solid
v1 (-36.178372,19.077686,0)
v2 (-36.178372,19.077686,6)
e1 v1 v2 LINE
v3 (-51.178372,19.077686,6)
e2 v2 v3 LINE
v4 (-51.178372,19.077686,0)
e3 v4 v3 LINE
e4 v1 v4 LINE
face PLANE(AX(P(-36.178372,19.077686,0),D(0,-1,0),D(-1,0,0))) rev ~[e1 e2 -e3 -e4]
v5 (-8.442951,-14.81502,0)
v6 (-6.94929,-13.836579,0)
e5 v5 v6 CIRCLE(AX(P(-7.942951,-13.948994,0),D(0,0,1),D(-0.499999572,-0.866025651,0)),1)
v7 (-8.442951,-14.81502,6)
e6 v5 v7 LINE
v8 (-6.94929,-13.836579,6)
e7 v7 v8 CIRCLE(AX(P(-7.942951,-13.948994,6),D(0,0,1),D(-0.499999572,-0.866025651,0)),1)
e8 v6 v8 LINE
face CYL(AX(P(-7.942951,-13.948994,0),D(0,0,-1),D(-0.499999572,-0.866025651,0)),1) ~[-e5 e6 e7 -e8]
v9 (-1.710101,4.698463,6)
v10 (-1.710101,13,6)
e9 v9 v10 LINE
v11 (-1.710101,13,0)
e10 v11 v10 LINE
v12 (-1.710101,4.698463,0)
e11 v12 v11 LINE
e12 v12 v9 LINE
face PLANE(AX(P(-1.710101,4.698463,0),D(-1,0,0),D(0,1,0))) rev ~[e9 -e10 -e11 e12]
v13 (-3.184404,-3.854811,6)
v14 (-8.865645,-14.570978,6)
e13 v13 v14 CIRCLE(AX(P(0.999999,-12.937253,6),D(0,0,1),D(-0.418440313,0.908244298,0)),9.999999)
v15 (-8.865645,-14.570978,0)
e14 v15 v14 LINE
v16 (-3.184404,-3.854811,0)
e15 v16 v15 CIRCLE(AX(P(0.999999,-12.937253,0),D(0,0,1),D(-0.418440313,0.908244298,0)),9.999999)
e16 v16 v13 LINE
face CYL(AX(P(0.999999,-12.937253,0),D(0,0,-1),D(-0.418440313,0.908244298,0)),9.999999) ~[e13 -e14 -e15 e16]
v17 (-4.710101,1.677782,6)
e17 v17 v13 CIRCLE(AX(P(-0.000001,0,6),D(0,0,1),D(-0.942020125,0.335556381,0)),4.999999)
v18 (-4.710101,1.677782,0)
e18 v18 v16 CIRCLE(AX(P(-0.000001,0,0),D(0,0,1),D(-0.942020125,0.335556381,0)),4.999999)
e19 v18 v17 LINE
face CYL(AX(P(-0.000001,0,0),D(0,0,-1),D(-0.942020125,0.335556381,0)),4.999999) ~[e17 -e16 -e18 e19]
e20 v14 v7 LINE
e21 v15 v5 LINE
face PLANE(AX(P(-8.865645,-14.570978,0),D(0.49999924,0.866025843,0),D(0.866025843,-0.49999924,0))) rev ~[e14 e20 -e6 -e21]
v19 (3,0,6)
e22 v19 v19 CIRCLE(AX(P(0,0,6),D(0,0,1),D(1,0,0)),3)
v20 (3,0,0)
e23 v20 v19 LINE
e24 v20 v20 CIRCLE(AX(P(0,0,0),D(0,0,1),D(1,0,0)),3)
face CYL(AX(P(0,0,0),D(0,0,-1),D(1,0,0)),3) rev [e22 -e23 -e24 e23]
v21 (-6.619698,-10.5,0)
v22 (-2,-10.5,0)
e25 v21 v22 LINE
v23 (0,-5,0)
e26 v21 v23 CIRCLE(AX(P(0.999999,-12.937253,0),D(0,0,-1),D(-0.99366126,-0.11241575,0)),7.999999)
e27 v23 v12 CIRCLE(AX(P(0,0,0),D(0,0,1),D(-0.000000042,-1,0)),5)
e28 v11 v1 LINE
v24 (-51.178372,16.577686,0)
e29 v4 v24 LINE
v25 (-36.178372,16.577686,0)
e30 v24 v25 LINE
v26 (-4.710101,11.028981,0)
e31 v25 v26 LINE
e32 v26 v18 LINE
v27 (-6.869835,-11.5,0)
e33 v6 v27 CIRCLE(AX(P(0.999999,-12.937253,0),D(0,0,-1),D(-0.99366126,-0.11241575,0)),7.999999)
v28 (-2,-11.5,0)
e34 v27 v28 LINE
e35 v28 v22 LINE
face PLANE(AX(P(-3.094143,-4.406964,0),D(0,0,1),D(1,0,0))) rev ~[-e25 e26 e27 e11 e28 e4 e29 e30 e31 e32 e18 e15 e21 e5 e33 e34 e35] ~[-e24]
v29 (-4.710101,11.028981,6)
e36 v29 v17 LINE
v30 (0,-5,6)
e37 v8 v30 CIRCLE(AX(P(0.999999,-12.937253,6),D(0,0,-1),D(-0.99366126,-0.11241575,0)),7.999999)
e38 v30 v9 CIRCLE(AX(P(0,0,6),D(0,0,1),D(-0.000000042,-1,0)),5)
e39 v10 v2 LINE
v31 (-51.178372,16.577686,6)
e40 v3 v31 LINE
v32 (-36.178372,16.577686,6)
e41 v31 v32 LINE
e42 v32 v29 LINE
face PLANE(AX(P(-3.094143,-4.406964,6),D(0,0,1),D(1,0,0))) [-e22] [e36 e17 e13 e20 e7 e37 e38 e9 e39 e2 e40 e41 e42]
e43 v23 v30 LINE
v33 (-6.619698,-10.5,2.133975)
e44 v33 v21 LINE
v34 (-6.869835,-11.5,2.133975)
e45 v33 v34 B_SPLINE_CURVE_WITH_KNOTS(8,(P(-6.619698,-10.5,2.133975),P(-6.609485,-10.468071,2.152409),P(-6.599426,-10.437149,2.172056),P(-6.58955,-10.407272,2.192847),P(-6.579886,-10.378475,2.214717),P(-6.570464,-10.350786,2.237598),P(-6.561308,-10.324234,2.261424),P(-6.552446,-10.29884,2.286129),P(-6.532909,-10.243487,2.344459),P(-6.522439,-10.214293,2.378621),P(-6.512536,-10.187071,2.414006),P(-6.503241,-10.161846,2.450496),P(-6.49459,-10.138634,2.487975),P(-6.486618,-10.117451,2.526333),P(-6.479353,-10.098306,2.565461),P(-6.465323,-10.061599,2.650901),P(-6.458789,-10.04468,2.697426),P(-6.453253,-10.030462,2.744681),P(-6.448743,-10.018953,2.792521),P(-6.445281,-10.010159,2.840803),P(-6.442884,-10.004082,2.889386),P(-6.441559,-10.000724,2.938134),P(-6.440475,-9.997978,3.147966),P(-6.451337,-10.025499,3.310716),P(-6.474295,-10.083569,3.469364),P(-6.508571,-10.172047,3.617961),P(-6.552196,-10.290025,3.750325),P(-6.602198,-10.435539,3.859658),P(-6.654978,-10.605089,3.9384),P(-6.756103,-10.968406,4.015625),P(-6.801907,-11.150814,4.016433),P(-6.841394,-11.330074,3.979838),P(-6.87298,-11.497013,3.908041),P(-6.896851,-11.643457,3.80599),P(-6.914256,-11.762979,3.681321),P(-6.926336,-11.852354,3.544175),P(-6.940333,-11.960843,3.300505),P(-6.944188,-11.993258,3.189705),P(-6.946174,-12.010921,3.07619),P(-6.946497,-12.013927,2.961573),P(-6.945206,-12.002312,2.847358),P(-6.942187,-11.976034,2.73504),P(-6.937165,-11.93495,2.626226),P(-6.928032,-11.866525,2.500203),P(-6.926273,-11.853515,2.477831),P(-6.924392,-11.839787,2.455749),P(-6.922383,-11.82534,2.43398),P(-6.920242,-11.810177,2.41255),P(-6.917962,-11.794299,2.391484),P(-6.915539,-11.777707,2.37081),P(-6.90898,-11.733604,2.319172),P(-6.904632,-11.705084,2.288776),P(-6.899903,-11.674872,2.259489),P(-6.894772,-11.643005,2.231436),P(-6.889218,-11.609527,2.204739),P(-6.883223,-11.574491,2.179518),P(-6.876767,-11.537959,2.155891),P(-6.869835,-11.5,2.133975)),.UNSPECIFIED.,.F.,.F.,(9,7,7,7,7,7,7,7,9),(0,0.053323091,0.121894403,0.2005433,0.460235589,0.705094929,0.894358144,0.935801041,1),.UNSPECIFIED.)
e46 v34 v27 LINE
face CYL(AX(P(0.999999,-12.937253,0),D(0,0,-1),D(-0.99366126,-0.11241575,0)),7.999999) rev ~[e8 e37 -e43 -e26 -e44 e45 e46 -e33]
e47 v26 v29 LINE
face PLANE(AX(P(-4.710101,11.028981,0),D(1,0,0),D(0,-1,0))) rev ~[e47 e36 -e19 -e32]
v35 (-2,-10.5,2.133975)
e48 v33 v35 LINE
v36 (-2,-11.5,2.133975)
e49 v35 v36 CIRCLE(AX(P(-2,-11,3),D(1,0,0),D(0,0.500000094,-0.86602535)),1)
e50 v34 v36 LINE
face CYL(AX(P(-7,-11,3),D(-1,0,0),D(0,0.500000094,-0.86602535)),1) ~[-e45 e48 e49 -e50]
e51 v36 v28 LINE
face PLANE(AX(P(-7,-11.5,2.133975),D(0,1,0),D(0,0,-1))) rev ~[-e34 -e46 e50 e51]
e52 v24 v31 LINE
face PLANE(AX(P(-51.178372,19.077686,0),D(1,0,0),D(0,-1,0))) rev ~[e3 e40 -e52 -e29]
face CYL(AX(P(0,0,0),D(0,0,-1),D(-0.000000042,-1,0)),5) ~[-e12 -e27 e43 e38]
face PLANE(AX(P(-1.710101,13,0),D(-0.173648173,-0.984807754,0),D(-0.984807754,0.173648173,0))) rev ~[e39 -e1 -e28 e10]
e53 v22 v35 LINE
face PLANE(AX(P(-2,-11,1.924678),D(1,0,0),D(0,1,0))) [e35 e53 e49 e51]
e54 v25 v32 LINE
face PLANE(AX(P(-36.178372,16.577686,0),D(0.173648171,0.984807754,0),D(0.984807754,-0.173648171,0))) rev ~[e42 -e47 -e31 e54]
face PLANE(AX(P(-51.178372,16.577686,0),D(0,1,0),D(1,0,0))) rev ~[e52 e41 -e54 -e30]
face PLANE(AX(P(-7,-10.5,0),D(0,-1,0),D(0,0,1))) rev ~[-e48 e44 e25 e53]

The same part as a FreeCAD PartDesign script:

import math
import FreeCAD as App
import Part
import Sketcher

V = App.Vector
Q = App.Units.Quantity

doc = App.newDocument("Part")
params = doc.addObject("Spreadsheet::Sheet", "Params")
for row, (alias, value) in enumerate([
    ("sketch1_diameter", "6 mm"),
    ("sketch1_radius", "7.999999 mm"),
    ("sketch1_radius2", "5 mm"),
    ("sketch1_radius3", "9.999999 mm"),
    ("sketch1_radius4", "1 mm"),
    ("pad1_length", "6 mm"),
    ("sketch2_radius", "1 mm"),
    ("sketch2_width", "1 mm"),
    ("pad2_length", "5 mm"),
], start=1):
    params.set(f"A{row}", alias)
    params.set(f"B{row}", "=" + value)
    params.setAlias(f"B{row}", alias)

body = doc.addObject("PartDesign::Body", "Body")

# Sketch on XY plane
sketch1 = body.newObject("Sketcher::SketchObject", "Sketch")
sketch1.AttachmentSupport = (doc.getObject("XY_Plane"), [""])
sketch1.MapMode = "FlatFace"
sketch1.addGeometry([
    Part.ArcOfCircle(Part.Circle(V(1, -12.94, 0), V(0, 0, 1), 8), math.radians(97), math.radians(186)),  # 0
    Part.ArcOfCircle(Part.Circle(V(0, 0, 0), V(0, 0, 1), 5), math.radians(-90), math.radians(110)),  # 1
    Part.LineSegment(V(-1.71, 4.7, 0), V(-1.71, 13, 0)),  # 2
    Part.LineSegment(V(-1.71, 13, 0), V(-36.18, 19.08, 0)),  # 3
    Part.LineSegment(V(-36.18, 19.08, 0), V(-51.18, 19.08, 0)),  # 4
    Part.LineSegment(V(-51.18, 19.08, 0), V(-51.18, 16.58, 0)),  # 5
    Part.LineSegment(V(-51.18, 16.58, 0), V(-36.18, 16.58, 0)),  # 6
    Part.LineSegment(V(-36.18, 16.58, 0), V(-4.71, 11.03, 0)),  # 7
    Part.LineSegment(V(-4.71, 11.03, 0), V(-4.71, 1.68, 0)),  # 8
    Part.ArcOfCircle(Part.Circle(V(0, 0, 0), V(0, 0, 1), 5), math.radians(160), math.radians(230)),  # 9
    Part.ArcOfCircle(Part.Circle(V(1, -12.94, 0), V(0, 0, 1), 10), math.radians(115), math.radians(189)),  # 10
    Part.LineSegment(V(-8.87, -14.57, 0), V(-8.44, -14.82, 0)),  # 11
    Part.ArcOfCircle(Part.Circle(V(-7.94, -13.95, 0), V(0, 0, 1), 1), math.radians(-120), math.radians(6)),  # 12
    Part.Circle(V(0, 0, 0), V(0, 0, 1), 3),  # 13
], False)
sketch1.addConstraint([
    Sketcher.Constraint("Coincident", 0, 1, 1, 1),
    Sketcher.Constraint("Coincident", 1, 2, 2, 1),
    Sketcher.Constraint("Coincident", 2, 2, 3, 1),
    Sketcher.Constraint("Coincident", 3, 2, 4, 1),
    Sketcher.Constraint("Coincident", 4, 2, 5, 1),
    Sketcher.Constraint("Coincident", 5, 2, 6, 1),
    Sketcher.Constraint("Coincident", 6, 2, 7, 1),
    Sketcher.Constraint("Coincident", 7, 2, 8, 1),
    Sketcher.Constraint("Coincident", 8, 2, 9, 1),
    Sketcher.Constraint("Coincident", 9, 2, 10, 1),
    Sketcher.Constraint("Coincident", 10, 2, 11, 1),
    Sketcher.Constraint("Tangent", 11, 2, 12, 1),
    Sketcher.Constraint("Tangent", 12, 2, 0, 2),
    Sketcher.Constraint("Vertical", 2),
    Sketcher.Constraint("Horizontal", 4),
    Sketcher.Constraint("Vertical", 5),
    Sketcher.Constraint("Horizontal", 6),
    Sketcher.Constraint("Vertical", 8),
    Sketcher.Constraint("Coincident", 1, 3, -1, 1),
    Sketcher.Constraint("Coincident", 9, 3, -1, 1),
    Sketcher.Constraint("Coincident", 13, 3, -1, 1),
    Sketcher.Constraint("Coincident", 10, 3, 0, 3),
    Sketcher.Constraint("Equal", 1, 9),
    Sketcher.Constraint("PointOnObject", 0, 1, -2),
    Sketcher.Constraint("Parallel", 3, 7),
    Sketcher.Constraint("Vertical", 3, 2, 6, 2),
    Sketcher.Constraint("Diameter", 13, Q("6 mm")),
    Sketcher.Constraint("Radius", 0, Q("7.999999 mm")),
    Sketcher.Constraint("Radius", 1, Q("5 mm")),
    Sketcher.Constraint("Radius", 10, Q("9.999999 mm")),
    Sketcher.Constraint("Radius", 12, Q("1 mm")),
    Sketcher.Constraint("DistanceX", 4, 2, 4, 1, Q("15 mm")),
    Sketcher.Constraint("Angle", 3, Q("170 deg")),
    Sketcher.Constraint("Distance", 3, Q("35 mm")),
    Sketcher.Constraint("DistanceY", 5, 2, 5, 1, Q("2.5 mm")),
    Sketcher.Constraint("DistanceX", -1, 1, 0, 3, Q("0.999999 mm")),
    Sketcher.Constraint("DistanceY", -1, 1, 2, 2, Q("13 mm")),
    Sketcher.Constraint("DistanceX", 7, 2, 2, 2, Q("3 mm")),
    Sketcher.Constraint("DistanceX", 11, 2, 12, 3, Q("0.5 mm")),
    Sketcher.Constraint("DistanceY", 8, 2, 8, 1, Q("9.351199 mm")),
    Sketcher.Constraint("DistanceY", 10, 2, 12, 2, Q("0.734399 mm")),
])
sketch1.setExpression("Constraints[26]", "Params.sketch1_diameter")
sketch1.setExpression("Constraints[27]", "Params.sketch1_radius")
sketch1.setExpression("Constraints[28]", "Params.sketch1_radius2")
sketch1.setExpression("Constraints[29]", "Params.sketch1_radius3")
sketch1.setExpression("Constraints[30]", "Params.sketch1_radius4")
pad1 = body.newObject("PartDesign::Pad", "Pad")
pad1.Profile = sketch1
pad1.setExpression("Length", "Params.pad1_length")

# Sketch on YZ plane
sketch2 = body.newObject("Sketcher::SketchObject", "Sketch001")
sketch2.AttachmentSupport = (doc.getObject("YZ_Plane"), [""])
sketch2.MapMode = "FlatFace"
sketch2.AttachmentOffset = App.Placement(V(0, 0, -7), App.Rotation())
sketch2.addGeometry([
    Part.LineSegment(V(-10.5, 0, 0), V(-10.5, 2.1, 0)),
    Part.ArcOfCircle(Part.Circle(V(-11, 3, 0), V(0, 0, 1), 1), math.radians(-60), math.radians(240)),
    Part.LineSegment(V(-11.5, 2.1, 0), V(-11.5, 0, 0)),
    Part.LineSegment(V(-11.5, 0, 0), V(-10.5, 0, 0)),
], False)
sketch2.addConstraint([
    Sketcher.Constraint("Coincident", 0, 2, 1, 1),
    Sketcher.Constraint("Coincident", 1, 2, 2, 1),
    Sketcher.Constraint("Coincident", 2, 2, 3, 1),
    Sketcher.Constraint("Coincident", 3, 2, 0, 1),
    Sketcher.Constraint("Vertical", 0),
    Sketcher.Constraint("Vertical", 2),
    Sketcher.Constraint("Horizontal", 3),
    Sketcher.Constraint("PointOnObject", 2, 2, -1),
    Sketcher.Constraint("Horizontal", 0, 2, 1, 2),
    Sketcher.Constraint("Radius", 1, Q("1 mm")),
    Sketcher.Constraint("DistanceX", 3, 1, 3, 2, Q("1 mm")),
    Sketcher.Constraint("DistanceX", 1, 3, -1, 1, Q("11 mm")),
    Sketcher.Constraint("DistanceY", -1, 1, 1, 3, Q("3 mm")),
])
sketch2.setExpression("Constraints[9]", "Params.sketch2_radius")
sketch2.setExpression("Constraints[10]", "Params.sketch2_width")
pad2 = body.newObject("PartDesign::Pad", "Pad001")
pad2.Profile = sketch2
pad2.setExpression("Length", "Params.pad2_length")

doc.recompute()
